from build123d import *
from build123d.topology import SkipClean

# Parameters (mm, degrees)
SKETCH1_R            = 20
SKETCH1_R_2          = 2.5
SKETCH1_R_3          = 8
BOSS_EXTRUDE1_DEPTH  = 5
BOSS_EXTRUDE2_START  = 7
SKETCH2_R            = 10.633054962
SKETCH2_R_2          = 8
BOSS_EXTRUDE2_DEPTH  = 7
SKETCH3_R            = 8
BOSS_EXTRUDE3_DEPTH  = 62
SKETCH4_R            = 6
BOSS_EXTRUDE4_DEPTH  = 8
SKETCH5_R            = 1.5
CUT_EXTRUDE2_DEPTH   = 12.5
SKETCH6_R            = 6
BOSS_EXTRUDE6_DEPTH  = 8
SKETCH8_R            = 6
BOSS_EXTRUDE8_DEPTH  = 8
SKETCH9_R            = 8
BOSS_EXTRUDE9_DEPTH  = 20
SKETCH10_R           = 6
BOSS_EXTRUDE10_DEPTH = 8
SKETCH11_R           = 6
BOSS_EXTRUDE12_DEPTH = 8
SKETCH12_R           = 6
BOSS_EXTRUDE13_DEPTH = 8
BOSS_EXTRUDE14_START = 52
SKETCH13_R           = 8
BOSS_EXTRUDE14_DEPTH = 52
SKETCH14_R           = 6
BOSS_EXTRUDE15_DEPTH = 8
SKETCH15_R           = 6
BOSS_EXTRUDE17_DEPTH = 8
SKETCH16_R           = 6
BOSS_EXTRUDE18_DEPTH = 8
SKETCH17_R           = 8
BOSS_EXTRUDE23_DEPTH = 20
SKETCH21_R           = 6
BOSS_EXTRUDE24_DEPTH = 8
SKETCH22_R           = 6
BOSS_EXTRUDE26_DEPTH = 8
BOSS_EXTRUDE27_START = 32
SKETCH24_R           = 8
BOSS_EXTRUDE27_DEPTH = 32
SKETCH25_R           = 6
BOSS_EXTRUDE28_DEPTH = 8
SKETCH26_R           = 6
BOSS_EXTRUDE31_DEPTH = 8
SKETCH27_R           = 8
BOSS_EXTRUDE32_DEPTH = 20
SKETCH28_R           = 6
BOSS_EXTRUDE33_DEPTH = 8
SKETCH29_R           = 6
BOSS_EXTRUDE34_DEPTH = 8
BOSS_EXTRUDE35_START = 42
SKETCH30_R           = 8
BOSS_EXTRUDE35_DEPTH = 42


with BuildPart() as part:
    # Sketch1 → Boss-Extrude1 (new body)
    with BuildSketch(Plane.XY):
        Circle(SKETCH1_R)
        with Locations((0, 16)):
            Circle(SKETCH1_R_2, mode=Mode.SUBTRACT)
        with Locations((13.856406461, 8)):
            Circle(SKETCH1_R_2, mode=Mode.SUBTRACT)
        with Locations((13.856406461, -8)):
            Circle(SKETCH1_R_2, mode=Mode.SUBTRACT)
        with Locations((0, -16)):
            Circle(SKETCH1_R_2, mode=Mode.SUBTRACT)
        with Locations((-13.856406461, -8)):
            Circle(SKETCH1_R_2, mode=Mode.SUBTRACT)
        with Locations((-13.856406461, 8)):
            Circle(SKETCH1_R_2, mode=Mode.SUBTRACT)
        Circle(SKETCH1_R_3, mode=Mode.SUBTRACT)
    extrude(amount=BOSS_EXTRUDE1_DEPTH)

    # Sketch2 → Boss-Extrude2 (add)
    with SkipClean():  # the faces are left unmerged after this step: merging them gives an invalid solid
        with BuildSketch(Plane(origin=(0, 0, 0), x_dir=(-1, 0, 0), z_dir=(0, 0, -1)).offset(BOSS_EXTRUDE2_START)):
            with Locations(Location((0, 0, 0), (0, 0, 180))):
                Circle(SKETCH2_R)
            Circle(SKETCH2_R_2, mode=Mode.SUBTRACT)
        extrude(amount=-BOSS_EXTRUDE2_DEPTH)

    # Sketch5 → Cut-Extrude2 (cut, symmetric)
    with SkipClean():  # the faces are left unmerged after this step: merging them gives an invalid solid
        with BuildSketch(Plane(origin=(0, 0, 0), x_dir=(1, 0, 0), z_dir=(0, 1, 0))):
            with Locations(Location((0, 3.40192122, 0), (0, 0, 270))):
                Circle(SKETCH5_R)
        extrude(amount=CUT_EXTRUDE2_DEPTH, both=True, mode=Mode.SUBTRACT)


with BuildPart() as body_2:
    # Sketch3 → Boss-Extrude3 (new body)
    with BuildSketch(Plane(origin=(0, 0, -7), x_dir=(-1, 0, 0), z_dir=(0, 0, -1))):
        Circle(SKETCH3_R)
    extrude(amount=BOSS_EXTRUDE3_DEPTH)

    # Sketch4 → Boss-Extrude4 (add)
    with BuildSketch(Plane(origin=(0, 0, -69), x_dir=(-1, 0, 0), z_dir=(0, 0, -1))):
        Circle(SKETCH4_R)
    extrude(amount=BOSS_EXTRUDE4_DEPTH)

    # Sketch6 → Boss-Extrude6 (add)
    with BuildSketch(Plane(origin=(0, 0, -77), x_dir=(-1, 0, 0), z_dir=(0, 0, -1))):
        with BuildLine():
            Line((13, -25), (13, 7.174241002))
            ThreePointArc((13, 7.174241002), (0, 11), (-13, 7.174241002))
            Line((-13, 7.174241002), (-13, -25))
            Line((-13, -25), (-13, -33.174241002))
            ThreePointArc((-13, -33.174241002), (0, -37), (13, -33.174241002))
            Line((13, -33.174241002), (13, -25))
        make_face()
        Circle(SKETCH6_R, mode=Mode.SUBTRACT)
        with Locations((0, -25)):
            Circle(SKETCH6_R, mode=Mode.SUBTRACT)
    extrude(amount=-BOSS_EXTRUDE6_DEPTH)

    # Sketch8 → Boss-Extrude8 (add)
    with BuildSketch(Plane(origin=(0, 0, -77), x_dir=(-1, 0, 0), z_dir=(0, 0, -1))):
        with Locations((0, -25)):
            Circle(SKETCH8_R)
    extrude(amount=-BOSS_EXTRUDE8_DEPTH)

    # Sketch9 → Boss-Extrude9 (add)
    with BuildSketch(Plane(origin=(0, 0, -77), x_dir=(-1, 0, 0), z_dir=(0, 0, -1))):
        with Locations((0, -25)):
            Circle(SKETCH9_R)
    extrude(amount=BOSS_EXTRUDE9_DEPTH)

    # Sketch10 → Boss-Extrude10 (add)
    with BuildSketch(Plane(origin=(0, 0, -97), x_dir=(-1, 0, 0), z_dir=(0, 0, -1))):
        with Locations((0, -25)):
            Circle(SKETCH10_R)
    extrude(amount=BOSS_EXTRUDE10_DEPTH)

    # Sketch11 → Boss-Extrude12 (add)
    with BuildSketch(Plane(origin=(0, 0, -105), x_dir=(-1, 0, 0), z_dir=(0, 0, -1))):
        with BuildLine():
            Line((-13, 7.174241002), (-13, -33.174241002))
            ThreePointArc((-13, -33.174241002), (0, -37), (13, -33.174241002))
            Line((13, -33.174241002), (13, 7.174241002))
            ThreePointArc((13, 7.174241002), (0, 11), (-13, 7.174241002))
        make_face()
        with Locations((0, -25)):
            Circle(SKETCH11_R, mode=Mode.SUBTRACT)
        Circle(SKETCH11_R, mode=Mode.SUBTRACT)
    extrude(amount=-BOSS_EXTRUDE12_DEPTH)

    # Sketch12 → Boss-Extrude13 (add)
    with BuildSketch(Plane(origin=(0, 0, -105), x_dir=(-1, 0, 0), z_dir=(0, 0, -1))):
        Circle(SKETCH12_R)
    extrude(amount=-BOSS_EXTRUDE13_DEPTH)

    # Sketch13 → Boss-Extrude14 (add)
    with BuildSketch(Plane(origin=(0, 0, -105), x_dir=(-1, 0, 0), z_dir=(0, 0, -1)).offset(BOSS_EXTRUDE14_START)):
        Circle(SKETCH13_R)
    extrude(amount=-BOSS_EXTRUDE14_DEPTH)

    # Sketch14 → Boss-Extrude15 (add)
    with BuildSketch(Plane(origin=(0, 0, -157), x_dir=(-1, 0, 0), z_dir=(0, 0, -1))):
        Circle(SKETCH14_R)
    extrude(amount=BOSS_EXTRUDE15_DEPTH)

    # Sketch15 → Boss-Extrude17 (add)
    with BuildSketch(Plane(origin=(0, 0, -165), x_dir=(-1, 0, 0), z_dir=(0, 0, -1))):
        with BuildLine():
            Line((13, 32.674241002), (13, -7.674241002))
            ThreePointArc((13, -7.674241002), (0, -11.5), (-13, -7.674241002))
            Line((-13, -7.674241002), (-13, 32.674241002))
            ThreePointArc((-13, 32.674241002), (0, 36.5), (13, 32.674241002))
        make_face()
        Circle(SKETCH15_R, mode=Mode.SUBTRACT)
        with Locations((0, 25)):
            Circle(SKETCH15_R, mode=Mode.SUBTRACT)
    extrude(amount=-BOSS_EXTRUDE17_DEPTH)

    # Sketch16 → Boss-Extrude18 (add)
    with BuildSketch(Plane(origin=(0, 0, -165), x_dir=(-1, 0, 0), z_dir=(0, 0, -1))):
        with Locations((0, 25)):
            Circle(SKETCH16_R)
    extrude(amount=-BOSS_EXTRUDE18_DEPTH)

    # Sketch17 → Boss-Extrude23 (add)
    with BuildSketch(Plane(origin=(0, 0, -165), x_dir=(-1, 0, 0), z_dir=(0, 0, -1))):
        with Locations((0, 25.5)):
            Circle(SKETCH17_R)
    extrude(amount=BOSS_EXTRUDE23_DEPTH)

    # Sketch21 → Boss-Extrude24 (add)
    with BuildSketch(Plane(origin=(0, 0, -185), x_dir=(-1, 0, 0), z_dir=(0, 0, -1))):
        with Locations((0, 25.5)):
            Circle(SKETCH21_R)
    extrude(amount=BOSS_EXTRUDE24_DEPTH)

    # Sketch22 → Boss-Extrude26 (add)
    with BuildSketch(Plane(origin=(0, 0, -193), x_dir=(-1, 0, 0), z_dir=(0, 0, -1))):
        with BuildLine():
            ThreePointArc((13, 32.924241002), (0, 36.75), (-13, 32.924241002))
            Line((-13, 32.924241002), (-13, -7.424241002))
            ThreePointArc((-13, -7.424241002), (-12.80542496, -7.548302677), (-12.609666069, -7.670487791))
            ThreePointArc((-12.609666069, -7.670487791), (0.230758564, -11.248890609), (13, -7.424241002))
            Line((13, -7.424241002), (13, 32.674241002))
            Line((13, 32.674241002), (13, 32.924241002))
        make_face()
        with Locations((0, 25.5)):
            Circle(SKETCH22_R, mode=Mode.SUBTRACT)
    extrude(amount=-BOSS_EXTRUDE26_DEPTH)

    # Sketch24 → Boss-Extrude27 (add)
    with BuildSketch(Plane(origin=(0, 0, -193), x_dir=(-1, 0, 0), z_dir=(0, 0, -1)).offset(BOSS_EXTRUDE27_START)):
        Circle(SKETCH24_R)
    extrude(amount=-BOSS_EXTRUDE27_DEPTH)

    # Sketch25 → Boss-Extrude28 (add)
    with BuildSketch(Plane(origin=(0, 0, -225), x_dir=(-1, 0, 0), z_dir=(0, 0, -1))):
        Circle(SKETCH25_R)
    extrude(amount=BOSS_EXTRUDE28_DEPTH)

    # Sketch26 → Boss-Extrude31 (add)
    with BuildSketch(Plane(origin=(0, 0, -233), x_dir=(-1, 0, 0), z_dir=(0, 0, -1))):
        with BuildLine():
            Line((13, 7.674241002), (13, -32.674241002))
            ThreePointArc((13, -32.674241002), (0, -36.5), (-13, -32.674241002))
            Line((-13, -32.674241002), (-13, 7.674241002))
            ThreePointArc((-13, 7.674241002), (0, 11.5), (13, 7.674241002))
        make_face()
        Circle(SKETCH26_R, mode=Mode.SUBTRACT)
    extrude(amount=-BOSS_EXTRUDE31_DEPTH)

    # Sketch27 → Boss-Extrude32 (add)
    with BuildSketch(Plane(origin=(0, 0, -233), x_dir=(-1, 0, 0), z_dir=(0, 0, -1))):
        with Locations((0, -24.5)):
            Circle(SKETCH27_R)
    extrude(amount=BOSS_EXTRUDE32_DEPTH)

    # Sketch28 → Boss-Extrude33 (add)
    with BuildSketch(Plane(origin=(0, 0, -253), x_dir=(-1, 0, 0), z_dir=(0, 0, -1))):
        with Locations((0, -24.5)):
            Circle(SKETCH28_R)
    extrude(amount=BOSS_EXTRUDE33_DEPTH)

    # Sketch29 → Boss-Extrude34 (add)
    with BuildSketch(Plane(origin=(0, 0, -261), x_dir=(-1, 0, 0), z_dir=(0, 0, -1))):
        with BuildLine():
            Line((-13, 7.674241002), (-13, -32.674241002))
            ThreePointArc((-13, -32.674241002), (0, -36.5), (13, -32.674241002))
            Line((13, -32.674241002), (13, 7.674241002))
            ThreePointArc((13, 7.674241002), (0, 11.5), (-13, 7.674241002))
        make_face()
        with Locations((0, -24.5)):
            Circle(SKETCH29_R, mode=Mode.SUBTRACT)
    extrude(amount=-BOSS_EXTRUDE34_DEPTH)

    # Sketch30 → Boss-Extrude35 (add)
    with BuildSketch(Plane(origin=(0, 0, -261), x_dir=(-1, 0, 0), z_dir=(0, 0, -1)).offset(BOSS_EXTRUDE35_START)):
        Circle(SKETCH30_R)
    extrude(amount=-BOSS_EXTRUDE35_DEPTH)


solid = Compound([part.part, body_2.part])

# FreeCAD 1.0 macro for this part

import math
import FreeCAD as App
import Part
import Sketcher
Q = App.Units.Quantity

doc = App.newDocument("Part")
body = doc.addObject("PartDesign::Body", "Body")

sketch1 = body.newObject("Sketcher::SketchObject", "Sketch")
sketch1.AttachmentSupport = (doc.getObject("XY_Plane"), [""])
sketch1.MapMode = "FlatFace"
sketch1.addGeometry(Part.Circle(App.Vector(0, 0, 0), App.Vector(0, 0, 1), 20), False)
sketch1.addGeometry(Part.Circle(App.Vector(-13.9, -8, 0), App.Vector(0, 0, 1), 2.5), False)
sketch1.addGeometry(Part.Circle(App.Vector(0, -16, 0), App.Vector(0, 0, 1), 2.5), False)
sketch1.addGeometry(Part.Circle(App.Vector(13.9, -8, 0), App.Vector(0, 0, 1), 2.5), False)
sketch1.addGeometry(Part.Circle(App.Vector(-13.9, 8, 0), App.Vector(0, 0, 1), 2.5), False)
sketch1.addGeometry(Part.Circle(App.Vector(0, 0, 0), App.Vector(0, 0, 1), 8), False)
sketch1.addGeometry(Part.Circle(App.Vector(13.9, 8, 0), App.Vector(0, 0, 1), 2.5), False)
sketch1.addGeometry(Part.Circle(App.Vector(0, 16, 0), App.Vector(0, 0, 1), 2.5), False)
sketch1.addConstraint(Sketcher.Constraint("Coincident", 0, 3, -1, 1))
sketch1.addConstraint(Sketcher.Constraint("Coincident", 5, 3, -1, 1))
sketch1.addConstraint(Sketcher.Constraint("Equal", 1, 2))
sketch1.addConstraint(Sketcher.Constraint("Equal", 2, 3))
sketch1.addConstraint(Sketcher.Constraint("Equal", 3, 4))
sketch1.addConstraint(Sketcher.Constraint("Equal", 4, 6))
sketch1.addConstraint(Sketcher.Constraint("Equal", 6, 7))
sketch1.addConstraint(Sketcher.Constraint("Symmetric", 3, 3, 4, 3, -1, 1))
sketch1.addConstraint(Sketcher.Constraint("Symmetric", 1, 3, 6, 3, -1, 1))
sketch1.addConstraint(Sketcher.Constraint("Symmetric", 2, 3, 7, 3, -1, 1))
sketch1.addConstraint(Sketcher.Constraint("Symmetric", 1, 3, 3, 3, -2))
sketch1.addConstraint(Sketcher.Constraint("PointOnObject", 2, 3, -2))
sketch1.addConstraint(Sketcher.Constraint("Diameter", 0, Q("40 mm")))
sketch1.addConstraint(Sketcher.Constraint("Diameter", 1, Q("5 mm")))
sketch1.addConstraint(Sketcher.Constraint("Diameter", 5, Q("16 mm")))
sketch1.addConstraint(Sketcher.Constraint("DistanceY", 1, 3, -1, 1, Q("8 mm")))
sketch1.addConstraint(Sketcher.Constraint("DistanceY", 2, 3, -1, 1, Q("16 mm")))
sketch1.addConstraint(Sketcher.Constraint("DistanceX", 1, 3, -1, 1, Q("13.856406 mm")))
pad1 = body.newObject("PartDesign::Pad", "Pad")
pad1.Profile = sketch1
pad1.Length = 5

sketch2 = body.newObject("Sketcher::SketchObject", "Sketch001")
sketch2.AttachmentSupport = (doc.getObject("XY_Plane"), [""])
sketch2.MapMode = "FlatFace"
sketch2.AttachmentOffset = App.Placement(App.Vector(0, 0, -7), App.Rotation())
sketch2.addGeometry(Part.Circle(App.Vector(0, 0, 0), App.Vector(0, 0, 1), 11), False)
sketch2.addGeometry(Part.Circle(App.Vector(0, 0, 0), App.Vector(0, 0, 1), 8), False)
sketch2.addConstraint(Sketcher.Constraint("Coincident", 0, 3, -1, 1))
sketch2.addConstraint(Sketcher.Constraint("Coincident", 1, 3, -1, 1))
sketch2.addConstraint(Sketcher.Constraint("Diameter", 1, Q("16 mm")))
sketch2.addConstraint(Sketcher.Constraint("Diameter", 0, Q("21.26611 mm")))
pad2 = body.newObject("PartDesign::Pad", "Pad001")
pad2.Profile = sketch2
pad2.Length = 7

sketch3 = body.newObject("Sketcher::SketchObject", "Sketch002")
sketch3.AttachmentSupport = (doc.getObject("XZ_Plane"), [""])
sketch3.MapMode = "FlatFace"
sketch3.addGeometry(Part.Circle(App.Vector(0, -3.4, 0), App.Vector(0, 0, 1), 1.5), False)
sketch3.addConstraint(Sketcher.Constraint("PointOnObject", 0, 3, -2))
sketch3.addConstraint(Sketcher.Constraint("Diameter", 0, Q("3 mm")))
sketch3.addConstraint(Sketcher.Constraint("DistanceY", 0, 3, -1, 1, Q("3.401921 mm")))
pocket1 = body.newObject("PartDesign::Pocket", "Pocket")
pocket1.Profile = sketch3
pocket1.Length = 25
pocket1.Midplane = True
body2 = doc.addObject("PartDesign::Body", "Body001")

sketch4 = body2.newObject("Sketcher::SketchObject", "Sketch003")
sketch4.AttachmentSupport = (doc.getObject("XY_Plane001"), [""])
sketch4.MapMode = "FlatFace"
sketch4.AttachmentOffset = App.Placement(App.Vector(0, 0, -7), App.Rotation())
sketch4.addGeometry(Part.Circle(App.Vector(0, 0, 0), App.Vector(0, 0, 1), 8), False)
sketch4.addConstraint(Sketcher.Constraint("Coincident", 0, 3, -1, 1))
sketch4.addConstraint(Sketcher.Constraint("Diameter", 0, Q("16 mm")))
pad3 = body2.newObject("PartDesign::Pad", "Pad002")
pad3.Profile = sketch4
pad3.Length = 62
pad3.Reversed = True

sketch5 = body2.newObject("Sketcher::SketchObject", "Sketch004")
sketch5.AttachmentSupport = (doc.getObject("XY_Plane001"), [""])
sketch5.MapMode = "FlatFace"
sketch5.AttachmentOffset = App.Placement(App.Vector(0, 0, -69), App.Rotation())
sketch5.addGeometry(Part.Circle(App.Vector(0, 0, 0), App.Vector(0, 0, 1), 6), False)
sketch5.addConstraint(Sketcher.Constraint("Coincident", 0, 3, -1, 1))
sketch5.addConstraint(Sketcher.Constraint("Diameter", 0, Q("12 mm")))
pad4 = body2.newObject("PartDesign::Pad", "Pad003")
pad4.Profile = sketch5
pad4.Length = 8
pad4.Reversed = True

sketch6 = body2.newObject("Sketcher::SketchObject", "Sketch005")
sketch6.AttachmentSupport = (doc.getObject("XY_Plane001"), [""])
sketch6.MapMode = "FlatFace"
sketch6.AttachmentOffset = App.Placement(App.Vector(0, 0, -77), App.Rotation())
sketch6.addGeometry(Part.ArcOfCircle(Part.Circle(App.Vector(0, -13, 0), App.Vector(0, 0, 1), 24), math.radians(57), math.radians(123)), False)
sketch6.addGeometry(Part.LineSegment(App.Vector(13, 7, 0), App.Vector(13, -33, 0)), False)
sketch6.addGeometry(Part.ArcOfCircle(Part.Circle(App.Vector(0, -13, 0), App.Vector(0, 0, 1), 24), math.radians(-123), math.radians(-57)), False)
sketch6.addGeometry(Part.LineSegment(App.Vector(-13, -33, 0), App.Vector(-13, 7, 0)), False)
sketch6.addGeometry(Part.Circle(App.Vector(0, -25, 0), App.Vector(0, 0, 1), 6), False)
sketch6.addGeometry(Part.Circle(App.Vector(0, 0, 0), App.Vector(0, 0, 1), 6), False)
sketch6.addConstraint(Sketcher.Constraint("Coincident", 0, 1, 1, 1))
sketch6.addConstraint(Sketcher.Constraint("Coincident", 1, 2, 2, 2))
sketch6.addConstraint(Sketcher.Constraint("Coincident", 2, 1, 3, 1))
sketch6.addConstraint(Sketcher.Constraint("Coincident", 3, 2, 0, 2))
sketch6.addConstraint(Sketcher.Constraint("Vertical", 1))
sketch6.addConstraint(Sketcher.Constraint("Vertical", 3))
sketch6.addConstraint(Sketcher.Constraint("Coincident", 5, 3, -1, 1))
sketch6.addConstraint(Sketcher.Constraint("Coincident", 2, 3, 0, 3))
sketch6.addConstraint(Sketcher.Constraint("Equal", 0, 2))
sketch6.addConstraint(Sketcher.Constraint("Equal", 4, 5))
sketch6.addConstraint(Sketcher.Constraint("Symmetric", 1, 2, 2, 1, -2))
sketch6.addConstraint(Sketcher.Constraint("PointOnObject", 4, 3, -2))
sketch6.addConstraint(Sketcher.Constraint("Diameter", 4, Q("12 mm")))
sketch6.addConstraint(Sketcher.Constraint("Radius", 0, Q("24 mm")))
sketch6.addConstraint(Sketcher.Constraint("DistanceY", 0, 3, -1, 1, Q("13 mm")))
sketch6.addConstraint(Sketcher.Constraint("DistanceY", 4, 3, -1, 1, Q("25 mm")))
sketch6.addConstraint(Sketcher.Constraint("DistanceX", -1, 1, 0, 1, Q("13 mm")))
pad5 = body2.newObject("PartDesign::Pad", "Pad004")
pad5.Profile = sketch6
pad5.Length = 8

sketch7 = body2.newObject("Sketcher::SketchObject", "Sketch006")
sketch7.AttachmentSupport = (doc.getObject("XY_Plane001"), [""])
sketch7.MapMode = "FlatFace"
sketch7.AttachmentOffset = App.Placement(App.Vector(0, 0, -77), App.Rotation())
sketch7.addGeometry(Part.Circle(App.Vector(0, -25, 0), App.Vector(0, 0, 1), 6), False)
sketch7.addConstraint(Sketcher.Constraint("PointOnObject", 0, 3, -2))
sketch7.addConstraint(Sketcher.Constraint("Diameter", 0, Q("12 mm")))
sketch7.addConstraint(Sketcher.Constraint("DistanceY", 0, 3, -1, 1, Q("25 mm")))
pad6 = body2.newObject("PartDesign::Pad", "Pad005")
pad6.Profile = sketch7
pad6.Length = 8

sketch8 = body2.newObject("Sketcher::SketchObject", "Sketch007")
sketch8.AttachmentSupport = (doc.getObject("XY_Plane001"), [""])
sketch8.MapMode = "FlatFace"
sketch8.AttachmentOffset = App.Placement(App.Vector(0, 0, -77), App.Rotation())
sketch8.addGeometry(Part.Circle(App.Vector(0, -25, 0), App.Vector(0, 0, 1), 8), False)
sketch8.addConstraint(Sketcher.Constraint("PointOnObject", 0, 3, -2))
sketch8.addConstraint(Sketcher.Constraint("Diameter", 0, Q("16 mm")))
sketch8.addConstraint(Sketcher.Constraint("DistanceY", 0, 3, -1, 1, Q("25 mm")))
pad7 = body2.newObject("PartDesign::Pad", "Pad006")
pad7.Profile = sketch8
pad7.Length = 20
pad7.Reversed = True

sketch9 = body2.newObject("Sketcher::SketchObject", "Sketch008")
sketch9.AttachmentSupport = (doc.getObject("XY_Plane001"), [""])
sketch9.MapMode = "FlatFace"
sketch9.AttachmentOffset = App.Placement(App.Vector(0, 0, -97), App.Rotation())
sketch9.addGeometry(Part.Circle(App.Vector(0, -25, 0), App.Vector(0, 0, 1), 6), False)
sketch9.addConstraint(Sketcher.Constraint("PointOnObject", 0, 3, -2))
sketch9.addConstraint(Sketcher.Constraint("Diameter", 0, Q("12 mm")))
sketch9.addConstraint(Sketcher.Constraint("DistanceY", 0, 3, -1, 1, Q("25 mm")))
pad8 = body2.newObject("PartDesign::Pad", "Pad007")
pad8.Profile = sketch9
pad8.Length = 8
pad8.Reversed = True

sketch10 = body2.newObject("Sketcher::SketchObject", "Sketch009")
sketch10.AttachmentSupport = (doc.getObject("XY_Plane001"), [""])
sketch10.MapMode = "FlatFace"
sketch10.AttachmentOffset = App.Placement(App.Vector(0, 0, -105), App.Rotation())
sketch10.addGeometry(Part.LineSegment(App.Vector(13, 7, 0), App.Vector(13, -33, 0)), False)
sketch10.addGeometry(Part.ArcOfCircle(Part.Circle(App.Vector(0, -13, 0), App.Vector(0, 0, 1), 24), math.radians(-123), math.radians(-57)), False)
sketch10.addGeometry(Part.LineSegment(App.Vector(-13, -33, 0), App.Vector(-13, 7, 0)), False)
sketch10.addGeometry(Part.ArcOfCircle(Part.Circle(App.Vector(0, -13, 0), App.Vector(0, 0, 1), 24), math.radians(57), math.radians(123)), False)
sketch10.addGeometry(Part.Circle(App.Vector(0, -25, 0), App.Vector(0, 0, 1), 6), False)
sketch10.addGeometry(Part.Circle(App.Vector(0, 0, 0), App.Vector(0, 0, 1), 6), False)
sketch10.addConstraint(Sketcher.Constraint("Coincident", 0, 2, 1, 2))
sketch10.addConstraint(Sketcher.Constraint("Coincident", 1, 1, 2, 1))
sketch10.addConstraint(Sketcher.Constraint("Coincident", 2, 2, 3, 2))
sketch10.addConstraint(Sketcher.Constraint("Coincident", 3, 1, 0, 1))
sketch10.addConstraint(Sketcher.Constraint("Vertical", 0))
sketch10.addConstraint(Sketcher.Constraint("Vertical", 2))
sketch10.addConstraint(Sketcher.Constraint("Coincident", 5, 3, -1, 1))
sketch10.addConstraint(Sketcher.Constraint("Coincident", 3, 3, 1, 3))
sketch10.addConstraint(Sketcher.Constraint("Equal", 1, 3))
sketch10.addConstraint(Sketcher.Constraint("Equal", 4, 5))
sketch10.addConstraint(Sketcher.Constraint("Symmetric", 0, 2, 1, 1, -2))
sketch10.addConstraint(Sketcher.Constraint("PointOnObject", 4, 3, -2))
sketch10.addConstraint(Sketcher.Constraint("Diameter", 4, Q("12 mm")))
sketch10.addConstraint(Sketcher.Constraint("Radius", 1, Q("24 mm")))
sketch10.addConstraint(Sketcher.Constraint("DistanceY", 1, 3, -1, 1, Q("13 mm")))
sketch10.addConstraint(Sketcher.Constraint("DistanceY", 4, 3, -1, 1, Q("25 mm")))
sketch10.addConstraint(Sketcher.Constraint("DistanceX", -1, 1, 0, 2, Q("13 mm")))
pad9 = body2.newObject("PartDesign::Pad", "Pad008")
pad9.Profile = sketch10
pad9.Length = 8

sketch11 = body2.newObject("Sketcher::SketchObject", "Sketch010")
sketch11.AttachmentSupport = (doc.getObject("XY_Plane001"), [""])
sketch11.MapMode = "FlatFace"
sketch11.AttachmentOffset = App.Placement(App.Vector(0, 0, -105), App.Rotation())
sketch11.addGeometry(Part.Circle(App.Vector(0, 0, 0), App.Vector(0, 0, 1), 6), False)
sketch11.addConstraint(Sketcher.Constraint("Coincident", 0, 3, -1, 1))
sketch11.addConstraint(Sketcher.Constraint("Diameter", 0, Q("12 mm")))
pad10 = body2.newObject("PartDesign::Pad", "Pad009")
pad10.Profile = sketch11
pad10.Length = 8

sketch12 = body2.newObject("Sketcher::SketchObject", "Sketch011")
sketch12.AttachmentSupport = (doc.getObject("XY_Plane001"), [""])
sketch12.MapMode = "FlatFace"
sketch12.AttachmentOffset = App.Placement(App.Vector(0, 0, -157), App.Rotation())
sketch12.addGeometry(Part.Circle(App.Vector(0, 0, 0), App.Vector(0, 0, 1), 8), False)
sketch12.addConstraint(Sketcher.Constraint("Coincident", 0, 3, -1, 1))
sketch12.addConstraint(Sketcher.Constraint("Diameter", 0, Q("16 mm")))
pad11 = body2.newObject("PartDesign::Pad", "Pad010")
pad11.Profile = sketch12
pad11.Length = 52

sketch13 = body2.newObject("Sketcher::SketchObject", "Sketch012")
sketch13.AttachmentSupport = (doc.getObject("XY_Plane001"), [""])
sketch13.MapMode = "FlatFace"
sketch13.AttachmentOffset = App.Placement(App.Vector(0, 0, -157), App.Rotation())
sketch13.addGeometry(Part.Circle(App.Vector(0, 0, 0), App.Vector(0, 0, 1), 6), False)
sketch13.addConstraint(Sketcher.Constraint("Coincident", 0, 3, -1, 1))
sketch13.addConstraint(Sketcher.Constraint("Diameter", 0, Q("12 mm")))
pad12 = body2.newObject("PartDesign::Pad", "Pad011")
pad12.Profile = sketch13
pad12.Length = 8
pad12.Reversed = True

sketch14 = body2.newObject("Sketcher::SketchObject", "Sketch013")
sketch14.AttachmentSupport = (doc.getObject("XY_Plane001"), [""])
sketch14.MapMode = "FlatFace"
sketch14.AttachmentOffset = App.Placement(App.Vector(0, 0, -165), App.Rotation())
sketch14.addGeometry(Part.LineSegment(App.Vector(-13, -8, 0), App.Vector(-13, 33, 0)), False)
sketch14.addGeometry(Part.ArcOfCircle(Part.Circle(App.Vector(0, 12, 0), App.Vector(0, 0, 1), 24), math.radians(57), math.radians(123)), False)
sketch14.addGeometry(Part.LineSegment(App.Vector(13, 33, 0), App.Vector(13, -8, 0)), False)
sketch14.addGeometry(Part.ArcOfCircle(Part.Circle(App.Vector(0, 13, 0), App.Vector(0, 0, 1), 24), math.radians(-123), math.radians(-57)), False)
sketch14.addGeometry(Part.Circle(App.Vector(0, 0, 0), App.Vector(0, 0, 1), 6), False)
sketch14.addGeometry(Part.Circle(App.Vector(0, 25, 0), App.Vector(0, 0, 1), 6), False)
sketch14.addConstraint(Sketcher.Constraint("Coincident", 0, 2, 1, 2))
sketch14.addConstraint(Sketcher.Constraint("Coincident", 1, 1, 2, 1))
sketch14.addConstraint(Sketcher.Constraint("Coincident", 2, 2, 3, 2))
sketch14.addConstraint(Sketcher.Constraint("Coincident", 3, 1, 0, 1))
sketch14.addConstraint(Sketcher.Constraint("Vertical", 0))
sketch14.addConstraint(Sketcher.Constraint("Vertical", 2))
sketch14.addConstraint(Sketcher.Constraint("Coincident", 4, 3, -1, 1))
sketch14.addConstraint(Sketcher.Constraint("Coincident", 3, 3, 1, 3))
sketch14.addConstraint(Sketcher.Constraint("Equal", 1, 3))
sketch14.addConstraint(Sketcher.Constraint("Equal", 4, 5))
sketch14.addConstraint(Sketcher.Constraint("Symmetric", 0, 2, 1, 1, -2))
sketch14.addConstraint(Sketcher.Constraint("PointOnObject", 5, 3, -2))
sketch14.addConstraint(Sketcher.Constraint("Diameter", 4, Q("12 mm")))
sketch14.addConstraint(Sketcher.Constraint("Radius", 1, Q("24 mm")))
sketch14.addConstraint(Sketcher.Constraint("DistanceY", -1, 1, 5, 3, Q("25 mm")))
sketch14.addConstraint(Sketcher.Constraint("DistanceX", 0, 2, -1, 1, Q("13 mm")))
sketch14.addConstraint(Sketcher.Constraint("DistanceY", -1, 1, 1, 3, Q("12.5 mm")))
pad13 = body2.newObject("PartDesign::Pad", "Pad012")
pad13.Profile = sketch14
pad13.Length = 8

sketch15 = body2.newObject("Sketcher::SketchObject", "Sketch014")
sketch15.AttachmentSupport = (doc.getObject("XY_Plane001"), [""])
sketch15.MapMode = "FlatFace"
sketch15.AttachmentOffset = App.Placement(App.Vector(0, 0, -165), App.Rotation())
sketch15.addGeometry(Part.Circle(App.Vector(0, 25, 0), App.Vector(0, 0, 1), 6), False)
sketch15.addConstraint(Sketcher.Constraint("PointOnObject", 0, 3, -2))
sketch15.addConstraint(Sketcher.Constraint("Diameter", 0, Q("12 mm")))
sketch15.addConstraint(Sketcher.Constraint("DistanceY", -1, 1, 0, 3, Q("25 mm")))
pad14 = body2.newObject("PartDesign::Pad", "Pad013")
pad14.Profile = sketch15
pad14.Length = 8

sketch16 = body2.newObject("Sketcher::SketchObject", "Sketch015")
sketch16.AttachmentSupport = (doc.getObject("XY_Plane001"), [""])
sketch16.MapMode = "FlatFace"
sketch16.AttachmentOffset = App.Placement(App.Vector(0, 0, -165), App.Rotation())
sketch16.addGeometry(Part.Circle(App.Vector(0, 26, 0), App.Vector(0, 0, 1), 8), False)
sketch16.addConstraint(Sketcher.Constraint("PointOnObject", 0, 3, -2))
sketch16.addConstraint(Sketcher.Constraint("Diameter", 0, Q("16 mm")))
sketch16.addConstraint(Sketcher.Constraint("DistanceY", -1, 1, 0, 3, Q("25.5 mm")))
pad15 = body2.newObject("PartDesign::Pad", "Pad014")
pad15.Profile = sketch16
pad15.Length = 20
pad15.Reversed = True

sketch17 = body2.newObject("Sketcher::SketchObject", "Sketch016")
sketch17.AttachmentSupport = (doc.getObject("XY_Plane001"), [""])
sketch17.MapMode = "FlatFace"
sketch17.AttachmentOffset = App.Placement(App.Vector(0, 0, -185), App.Rotation())
sketch17.addGeometry(Part.Circle(App.Vector(0, 26, 0), App.Vector(0, 0, 1), 6), False)
sketch17.addConstraint(Sketcher.Constraint("PointOnObject", 0, 3, -2))
sketch17.addConstraint(Sketcher.Constraint("Diameter", 0, Q("12 mm")))
sketch17.addConstraint(Sketcher.Constraint("DistanceY", -1, 1, 0, 3, Q("25.5 mm")))
pad16 = body2.newObject("PartDesign::Pad", "Pad015")
pad16.Profile = sketch17
pad16.Length = 8
pad16.Reversed = True

sketch18 = body2.newObject("Sketcher::SketchObject", "Sketch017")
sketch18.AttachmentSupport = (doc.getObject("XY_Plane001"), [""])
sketch18.MapMode = "FlatFace"
sketch18.AttachmentOffset = App.Placement(App.Vector(0, 0, -193), App.Rotation())
sketch18.addGeometry(Part.ArcOfCircle(Part.Circle(App.Vector(0, 12.75, 0), App.Vector(0, 0, 1), 24), math.radians(57), math.radians(123)), False)
sketch18.addGeometry(Part.LineSegment(App.Vector(13, 32.92, 0), App.Vector(13, -7.42, 0)), False)
sketch18.addGeometry(Part.ArcOfCircle(Part.Circle(App.Vector(0, 12.75, 0), App.Vector(0, 0, 1), 24), math.radians(-58.3), math.radians(-57.2)), False)
sketch18.addGeometry(Part.ArcOfCircle(Part.Circle(App.Vector(0, 12.75, 0), App.Vector(0, 0, 1), 24), math.radians(-123), math.radians(-58)), False)
sketch18.addGeometry(Part.LineSegment(App.Vector(-13, -7.42, 0), App.Vector(-13, 32.92, 0)), False)
sketch18.addGeometry(Part.Circle(App.Vector(0, 25.5, 0), App.Vector(0, 0, 1), 6), False)
sketch18.addConstraint(Sketcher.Constraint("Coincident", 0, 1, 1, 1))
sketch18.addConstraint(Sketcher.Constraint("Coincident", 1, 2, 2, 2))
sketch18.addConstraint(Sketcher.Constraint("Tangent", 2, 1, 3, 2))
sketch18.addConstraint(Sketcher.Constraint("Coincident", 3, 1, 4, 1))
sketch18.addConstraint(Sketcher.Constraint("Coincident", 4, 2, 0, 2))
sketch18.addConstraint(Sketcher.Constraint("Vertical", 1))
sketch18.addConstraint(Sketcher.Constraint("Vertical", 4))
sketch18.addConstraint(Sketcher.Constraint("Coincident", 3, 3, 0, 3))
sketch18.addConstraint(Sketcher.Constraint("Equal", 0, 3))
sketch18.addConstraint(Sketcher.Constraint("Symmetric", 1, 2, 3, 1, -2))
sketch18.addConstraint(Sketcher.Constraint("PointOnObject", 5, 3, -2))
sketch18.addConstraint(Sketcher.Constraint("Diameter", 5, Q("12 mm")))
sketch18.addConstraint(Sketcher.Constraint("Radius", 0, Q("24 mm")))
sketch18.addConstraint(Sketcher.Constraint("DistanceX", -1, 1, 0, 1, Q("13 mm")))
sketch18.addConstraint(Sketcher.Constraint("DistanceY", -1, 1, 5, 3, Q("25.5 mm")))
sketch18.addConstraint(Sketcher.Constraint("DistanceY", -1, 1, 0, 3, Q("12.75 mm")))
sketch18.addConstraint(Sketcher.Constraint("Radius", 2, Q("24.000012 mm")))
sketch18.addConstraint(Sketcher.Constraint("DistanceY", 2, 1, 2, 3, Q("20.420498 mm")))
pad17 = body2.newObject("PartDesign::Pad", "Pad016")
pad17.Profile = sketch18
pad17.Length = 8

sketch19 = body2.newObject("Sketcher::SketchObject", "Sketch018")
sketch19.AttachmentSupport = (doc.getObject("XY_Plane001"), [""])
sketch19.MapMode = "FlatFace"
sketch19.AttachmentOffset = App.Placement(App.Vector(0, 0, -225), App.Rotation())
sketch19.addGeometry(Part.Circle(App.Vector(0, 0, 0), App.Vector(0, 0, 1), 8), False)
sketch19.addConstraint(Sketcher.Constraint("Coincident", 0, 3, -1, 1))
sketch19.addConstraint(Sketcher.Constraint("Diameter", 0, Q("16 mm")))
pad18 = body2.newObject("PartDesign::Pad", "Pad017")
pad18.Profile = sketch19
pad18.Length = 32

sketch20 = body2.newObject("Sketcher::SketchObject", "Sketch019")
sketch20.AttachmentSupport = (doc.getObject("XY_Plane001"), [""])
sketch20.MapMode = "FlatFace"
sketch20.AttachmentOffset = App.Placement(App.Vector(0, 0, -225), App.Rotation())
sketch20.addGeometry(Part.Circle(App.Vector(0, 0, 0), App.Vector(0, 0, 1), 6), False)
sketch20.addConstraint(Sketcher.Constraint("Coincident", 0, 3, -1, 1))
sketch20.addConstraint(Sketcher.Constraint("Diameter", 0, Q("12 mm")))
pad19 = body2.newObject("PartDesign::Pad", "Pad018")
pad19.Profile = sketch20
pad19.Length = 8
pad19.Reversed = True

sketch21 = body2.newObject("Sketcher::SketchObject", "Sketch020")
sketch21.AttachmentSupport = (doc.getObject("XY_Plane001"), [""])
sketch21.MapMode = "FlatFace"
sketch21.AttachmentOffset = App.Placement(App.Vector(0, 0, -233), App.Rotation())
sketch21.addGeometry(Part.LineSegment(App.Vector(-13, -33, 0), App.Vector(-13, 8, 0)), False)
sketch21.addGeometry(Part.ArcOfCircle(Part.Circle(App.Vector(0, -13, 0), App.Vector(0, 0, 1), 24), math.radians(57), math.radians(123)), False)
sketch21.addGeometry(Part.LineSegment(App.Vector(13, 8, 0), App.Vector(13, -33, 0)), False)
sketch21.addGeometry(Part.ArcOfCircle(Part.Circle(App.Vector(0, -12, 0), App.Vector(0, 0, 1), 24), math.radians(-123), math.radians(-57)), False)
sketch21.addGeometry(Part.Circle(App.Vector(0, 0, 0), App.Vector(0, 0, 1), 6), False)
sketch21.addConstraint(Sketcher.Constraint("Coincident", 0, 2, 1, 2))
sketch21.addConstraint(Sketcher.Constraint("Coincident", 1, 1, 2, 1))
sketch21.addConstraint(Sketcher.Constraint("Coincident", 2, 2, 3, 2))
sketch21.addConstraint(Sketcher.Constraint("Coincident", 3, 1, 0, 1))
sketch21.addConstraint(Sketcher.Constraint("Vertical", 0))
sketch21.addConstraint(Sketcher.Constraint("Vertical", 2))
sketch21.addConstraint(Sketcher.Constraint("Coincident", 4, 3, -1, 1))
sketch21.addConstraint(Sketcher.Constraint("Coincident", 3, 3, 1, 3))
sketch21.addConstraint(Sketcher.Constraint("Equal", 1, 3))
sketch21.addConstraint(Sketcher.Constraint("Symmetric", 0, 2, 1, 1, -2))
sketch21.addConstraint(Sketcher.Constraint("Diameter", 4, Q("12 mm")))
sketch21.addConstraint(Sketcher.Constraint("Radius", 1, Q("24 mm")))
sketch21.addConstraint(Sketcher.Constraint("DistanceX", 0, 2, -1, 1, Q("13 mm")))
sketch21.addConstraint(Sketcher.Constraint("DistanceY", 1, 3, -1, 1, Q("12.5 mm")))
pad20 = body2.newObject("PartDesign::Pad", "Pad019")
pad20.Profile = sketch21
pad20.Length = 8

sketch22 = body2.newObject("Sketcher::SketchObject", "Sketch021")
sketch22.AttachmentSupport = (doc.getObject("XY_Plane001"), [""])
sketch22.MapMode = "FlatFace"
sketch22.AttachmentOffset = App.Placement(App.Vector(0, 0, -233), App.Rotation())
sketch22.addGeometry(Part.Circle(App.Vector(0, -24, 0), App.Vector(0, 0, 1), 8), False)
sketch22.addConstraint(Sketcher.Constraint("PointOnObject", 0, 3, -2))
sketch22.addConstraint(Sketcher.Constraint("Diameter", 0, Q("16 mm")))
sketch22.addConstraint(Sketcher.Constraint("DistanceY", 0, 3, -1, 1, Q("24.5 mm")))
pad21 = body2.newObject("PartDesign::Pad", "Pad020")
pad21.Profile = sketch22
pad21.Length = 20
pad21.Reversed = True

sketch23 = body2.newObject("Sketcher::SketchObject", "Sketch022")
sketch23.AttachmentSupport = (doc.getObject("XY_Plane001"), [""])
sketch23.MapMode = "FlatFace"
sketch23.AttachmentOffset = App.Placement(App.Vector(0, 0, -253), App.Rotation())
sketch23.addGeometry(Part.Circle(App.Vector(0, -24, 0), App.Vector(0, 0, 1), 6), False)
sketch23.addConstraint(Sketcher.Constraint("PointOnObject", 0, 3, -2))
sketch23.addConstraint(Sketcher.Constraint("Diameter", 0, Q("12 mm")))
sketch23.addConstraint(Sketcher.Constraint("DistanceY", 0, 3, -1, 1, Q("24.5 mm")))
pad22 = body2.newObject("PartDesign::Pad", "Pad021")
pad22.Profile = sketch23
pad22.Length = 8
pad22.Reversed = True

sketch24 = body2.newObject("Sketcher::SketchObject", "Sketch023")
sketch24.AttachmentSupport = (doc.getObject("XY_Plane001"), [""])
sketch24.MapMode = "FlatFace"
sketch24.AttachmentOffset = App.Placement(App.Vector(0, 0, -261), App.Rotation())
sketch24.addGeometry(Part.LineSegment(App.Vector(13, 8, 0), App.Vector(13, -33, 0)), False)
sketch24.addGeometry(Part.ArcOfCircle(Part.Circle(App.Vector(0, -12, 0), App.Vector(0, 0, 1), 24), math.radians(-123), math.radians(-57)), False)
sketch24.addGeometry(Part.LineSegment(App.Vector(-13, -33, 0), App.Vector(-13, 8, 0)), False)
sketch24.addGeometry(Part.ArcOfCircle(Part.Circle(App.Vector(0, -13, 0), App.Vector(0, 0, 1), 24), math.radians(57), math.radians(123)), False)
sketch24.addGeometry(Part.Circle(App.Vector(0, -24, 0), App.Vector(0, 0, 1), 6), False)
sketch24.addConstraint(Sketcher.Constraint("Coincident", 0, 2, 1, 2))
sketch24.addConstraint(Sketcher.Constraint("Coincident", 1, 1, 2, 1))
sketch24.addConstraint(Sketcher.Constraint("Coincident", 2, 2, 3, 2))
sketch24.addConstraint(Sketcher.Constraint("Coincident", 3, 1, 0, 1))
sketch24.addConstraint(Sketcher.Constraint("Vertical", 0))
sketch24.addConstraint(Sketcher.Constraint("Vertical", 2))
sketch24.addConstraint(Sketcher.Constraint("Coincident", 3, 3, 1, 3))
sketch24.addConstraint(Sketcher.Constraint("Equal", 1, 3))
sketch24.addConstraint(Sketcher.Constraint("Symmetric", 0, 2, 1, 1, -2))
sketch24.addConstraint(Sketcher.Constraint("PointOnObject", 4, 3, -2))
sketch24.addConstraint(Sketcher.Constraint("Diameter", 4, Q("12 mm")))
sketch24.addConstraint(Sketcher.Constraint("Radius", 1, Q("24 mm")))
sketch24.addConstraint(Sketcher.Constraint("DistanceX", -1, 1, 0, 2, Q("13 mm")))
sketch24.addConstraint(Sketcher.Constraint("DistanceY", 4, 3, 3, 3, Q("12 mm")))
sketch24.addConstraint(Sketcher.Constraint("DistanceY", 1, 3, -1, 1, Q("12.5 mm")))
pad23 = body2.newObject("PartDesign::Pad", "Pad022")
pad23.Profile = sketch24
pad23.Length = 8

sketch25 = body2.newObject("Sketcher::SketchObject", "Sketch024")
sketch25.AttachmentSupport = (doc.getObject("XY_Plane001"), [""])
sketch25.MapMode = "FlatFace"
sketch25.AttachmentOffset = App.Placement(App.Vector(0, 0, -303), App.Rotation())
sketch25.addGeometry(Part.Circle(App.Vector(0, 0, 0), App.Vector(0, 0, 1), 8), False)
sketch25.addConstraint(Sketcher.Constraint("Coincident", 0, 3, -1, 1))
sketch25.addConstraint(Sketcher.Constraint("Diameter", 0, Q("16 mm")))
pad24 = body2.newObject("PartDesign::Pad", "Pad023")
pad24.Profile = sketch25
pad24.Length = 42

doc.recompute()
